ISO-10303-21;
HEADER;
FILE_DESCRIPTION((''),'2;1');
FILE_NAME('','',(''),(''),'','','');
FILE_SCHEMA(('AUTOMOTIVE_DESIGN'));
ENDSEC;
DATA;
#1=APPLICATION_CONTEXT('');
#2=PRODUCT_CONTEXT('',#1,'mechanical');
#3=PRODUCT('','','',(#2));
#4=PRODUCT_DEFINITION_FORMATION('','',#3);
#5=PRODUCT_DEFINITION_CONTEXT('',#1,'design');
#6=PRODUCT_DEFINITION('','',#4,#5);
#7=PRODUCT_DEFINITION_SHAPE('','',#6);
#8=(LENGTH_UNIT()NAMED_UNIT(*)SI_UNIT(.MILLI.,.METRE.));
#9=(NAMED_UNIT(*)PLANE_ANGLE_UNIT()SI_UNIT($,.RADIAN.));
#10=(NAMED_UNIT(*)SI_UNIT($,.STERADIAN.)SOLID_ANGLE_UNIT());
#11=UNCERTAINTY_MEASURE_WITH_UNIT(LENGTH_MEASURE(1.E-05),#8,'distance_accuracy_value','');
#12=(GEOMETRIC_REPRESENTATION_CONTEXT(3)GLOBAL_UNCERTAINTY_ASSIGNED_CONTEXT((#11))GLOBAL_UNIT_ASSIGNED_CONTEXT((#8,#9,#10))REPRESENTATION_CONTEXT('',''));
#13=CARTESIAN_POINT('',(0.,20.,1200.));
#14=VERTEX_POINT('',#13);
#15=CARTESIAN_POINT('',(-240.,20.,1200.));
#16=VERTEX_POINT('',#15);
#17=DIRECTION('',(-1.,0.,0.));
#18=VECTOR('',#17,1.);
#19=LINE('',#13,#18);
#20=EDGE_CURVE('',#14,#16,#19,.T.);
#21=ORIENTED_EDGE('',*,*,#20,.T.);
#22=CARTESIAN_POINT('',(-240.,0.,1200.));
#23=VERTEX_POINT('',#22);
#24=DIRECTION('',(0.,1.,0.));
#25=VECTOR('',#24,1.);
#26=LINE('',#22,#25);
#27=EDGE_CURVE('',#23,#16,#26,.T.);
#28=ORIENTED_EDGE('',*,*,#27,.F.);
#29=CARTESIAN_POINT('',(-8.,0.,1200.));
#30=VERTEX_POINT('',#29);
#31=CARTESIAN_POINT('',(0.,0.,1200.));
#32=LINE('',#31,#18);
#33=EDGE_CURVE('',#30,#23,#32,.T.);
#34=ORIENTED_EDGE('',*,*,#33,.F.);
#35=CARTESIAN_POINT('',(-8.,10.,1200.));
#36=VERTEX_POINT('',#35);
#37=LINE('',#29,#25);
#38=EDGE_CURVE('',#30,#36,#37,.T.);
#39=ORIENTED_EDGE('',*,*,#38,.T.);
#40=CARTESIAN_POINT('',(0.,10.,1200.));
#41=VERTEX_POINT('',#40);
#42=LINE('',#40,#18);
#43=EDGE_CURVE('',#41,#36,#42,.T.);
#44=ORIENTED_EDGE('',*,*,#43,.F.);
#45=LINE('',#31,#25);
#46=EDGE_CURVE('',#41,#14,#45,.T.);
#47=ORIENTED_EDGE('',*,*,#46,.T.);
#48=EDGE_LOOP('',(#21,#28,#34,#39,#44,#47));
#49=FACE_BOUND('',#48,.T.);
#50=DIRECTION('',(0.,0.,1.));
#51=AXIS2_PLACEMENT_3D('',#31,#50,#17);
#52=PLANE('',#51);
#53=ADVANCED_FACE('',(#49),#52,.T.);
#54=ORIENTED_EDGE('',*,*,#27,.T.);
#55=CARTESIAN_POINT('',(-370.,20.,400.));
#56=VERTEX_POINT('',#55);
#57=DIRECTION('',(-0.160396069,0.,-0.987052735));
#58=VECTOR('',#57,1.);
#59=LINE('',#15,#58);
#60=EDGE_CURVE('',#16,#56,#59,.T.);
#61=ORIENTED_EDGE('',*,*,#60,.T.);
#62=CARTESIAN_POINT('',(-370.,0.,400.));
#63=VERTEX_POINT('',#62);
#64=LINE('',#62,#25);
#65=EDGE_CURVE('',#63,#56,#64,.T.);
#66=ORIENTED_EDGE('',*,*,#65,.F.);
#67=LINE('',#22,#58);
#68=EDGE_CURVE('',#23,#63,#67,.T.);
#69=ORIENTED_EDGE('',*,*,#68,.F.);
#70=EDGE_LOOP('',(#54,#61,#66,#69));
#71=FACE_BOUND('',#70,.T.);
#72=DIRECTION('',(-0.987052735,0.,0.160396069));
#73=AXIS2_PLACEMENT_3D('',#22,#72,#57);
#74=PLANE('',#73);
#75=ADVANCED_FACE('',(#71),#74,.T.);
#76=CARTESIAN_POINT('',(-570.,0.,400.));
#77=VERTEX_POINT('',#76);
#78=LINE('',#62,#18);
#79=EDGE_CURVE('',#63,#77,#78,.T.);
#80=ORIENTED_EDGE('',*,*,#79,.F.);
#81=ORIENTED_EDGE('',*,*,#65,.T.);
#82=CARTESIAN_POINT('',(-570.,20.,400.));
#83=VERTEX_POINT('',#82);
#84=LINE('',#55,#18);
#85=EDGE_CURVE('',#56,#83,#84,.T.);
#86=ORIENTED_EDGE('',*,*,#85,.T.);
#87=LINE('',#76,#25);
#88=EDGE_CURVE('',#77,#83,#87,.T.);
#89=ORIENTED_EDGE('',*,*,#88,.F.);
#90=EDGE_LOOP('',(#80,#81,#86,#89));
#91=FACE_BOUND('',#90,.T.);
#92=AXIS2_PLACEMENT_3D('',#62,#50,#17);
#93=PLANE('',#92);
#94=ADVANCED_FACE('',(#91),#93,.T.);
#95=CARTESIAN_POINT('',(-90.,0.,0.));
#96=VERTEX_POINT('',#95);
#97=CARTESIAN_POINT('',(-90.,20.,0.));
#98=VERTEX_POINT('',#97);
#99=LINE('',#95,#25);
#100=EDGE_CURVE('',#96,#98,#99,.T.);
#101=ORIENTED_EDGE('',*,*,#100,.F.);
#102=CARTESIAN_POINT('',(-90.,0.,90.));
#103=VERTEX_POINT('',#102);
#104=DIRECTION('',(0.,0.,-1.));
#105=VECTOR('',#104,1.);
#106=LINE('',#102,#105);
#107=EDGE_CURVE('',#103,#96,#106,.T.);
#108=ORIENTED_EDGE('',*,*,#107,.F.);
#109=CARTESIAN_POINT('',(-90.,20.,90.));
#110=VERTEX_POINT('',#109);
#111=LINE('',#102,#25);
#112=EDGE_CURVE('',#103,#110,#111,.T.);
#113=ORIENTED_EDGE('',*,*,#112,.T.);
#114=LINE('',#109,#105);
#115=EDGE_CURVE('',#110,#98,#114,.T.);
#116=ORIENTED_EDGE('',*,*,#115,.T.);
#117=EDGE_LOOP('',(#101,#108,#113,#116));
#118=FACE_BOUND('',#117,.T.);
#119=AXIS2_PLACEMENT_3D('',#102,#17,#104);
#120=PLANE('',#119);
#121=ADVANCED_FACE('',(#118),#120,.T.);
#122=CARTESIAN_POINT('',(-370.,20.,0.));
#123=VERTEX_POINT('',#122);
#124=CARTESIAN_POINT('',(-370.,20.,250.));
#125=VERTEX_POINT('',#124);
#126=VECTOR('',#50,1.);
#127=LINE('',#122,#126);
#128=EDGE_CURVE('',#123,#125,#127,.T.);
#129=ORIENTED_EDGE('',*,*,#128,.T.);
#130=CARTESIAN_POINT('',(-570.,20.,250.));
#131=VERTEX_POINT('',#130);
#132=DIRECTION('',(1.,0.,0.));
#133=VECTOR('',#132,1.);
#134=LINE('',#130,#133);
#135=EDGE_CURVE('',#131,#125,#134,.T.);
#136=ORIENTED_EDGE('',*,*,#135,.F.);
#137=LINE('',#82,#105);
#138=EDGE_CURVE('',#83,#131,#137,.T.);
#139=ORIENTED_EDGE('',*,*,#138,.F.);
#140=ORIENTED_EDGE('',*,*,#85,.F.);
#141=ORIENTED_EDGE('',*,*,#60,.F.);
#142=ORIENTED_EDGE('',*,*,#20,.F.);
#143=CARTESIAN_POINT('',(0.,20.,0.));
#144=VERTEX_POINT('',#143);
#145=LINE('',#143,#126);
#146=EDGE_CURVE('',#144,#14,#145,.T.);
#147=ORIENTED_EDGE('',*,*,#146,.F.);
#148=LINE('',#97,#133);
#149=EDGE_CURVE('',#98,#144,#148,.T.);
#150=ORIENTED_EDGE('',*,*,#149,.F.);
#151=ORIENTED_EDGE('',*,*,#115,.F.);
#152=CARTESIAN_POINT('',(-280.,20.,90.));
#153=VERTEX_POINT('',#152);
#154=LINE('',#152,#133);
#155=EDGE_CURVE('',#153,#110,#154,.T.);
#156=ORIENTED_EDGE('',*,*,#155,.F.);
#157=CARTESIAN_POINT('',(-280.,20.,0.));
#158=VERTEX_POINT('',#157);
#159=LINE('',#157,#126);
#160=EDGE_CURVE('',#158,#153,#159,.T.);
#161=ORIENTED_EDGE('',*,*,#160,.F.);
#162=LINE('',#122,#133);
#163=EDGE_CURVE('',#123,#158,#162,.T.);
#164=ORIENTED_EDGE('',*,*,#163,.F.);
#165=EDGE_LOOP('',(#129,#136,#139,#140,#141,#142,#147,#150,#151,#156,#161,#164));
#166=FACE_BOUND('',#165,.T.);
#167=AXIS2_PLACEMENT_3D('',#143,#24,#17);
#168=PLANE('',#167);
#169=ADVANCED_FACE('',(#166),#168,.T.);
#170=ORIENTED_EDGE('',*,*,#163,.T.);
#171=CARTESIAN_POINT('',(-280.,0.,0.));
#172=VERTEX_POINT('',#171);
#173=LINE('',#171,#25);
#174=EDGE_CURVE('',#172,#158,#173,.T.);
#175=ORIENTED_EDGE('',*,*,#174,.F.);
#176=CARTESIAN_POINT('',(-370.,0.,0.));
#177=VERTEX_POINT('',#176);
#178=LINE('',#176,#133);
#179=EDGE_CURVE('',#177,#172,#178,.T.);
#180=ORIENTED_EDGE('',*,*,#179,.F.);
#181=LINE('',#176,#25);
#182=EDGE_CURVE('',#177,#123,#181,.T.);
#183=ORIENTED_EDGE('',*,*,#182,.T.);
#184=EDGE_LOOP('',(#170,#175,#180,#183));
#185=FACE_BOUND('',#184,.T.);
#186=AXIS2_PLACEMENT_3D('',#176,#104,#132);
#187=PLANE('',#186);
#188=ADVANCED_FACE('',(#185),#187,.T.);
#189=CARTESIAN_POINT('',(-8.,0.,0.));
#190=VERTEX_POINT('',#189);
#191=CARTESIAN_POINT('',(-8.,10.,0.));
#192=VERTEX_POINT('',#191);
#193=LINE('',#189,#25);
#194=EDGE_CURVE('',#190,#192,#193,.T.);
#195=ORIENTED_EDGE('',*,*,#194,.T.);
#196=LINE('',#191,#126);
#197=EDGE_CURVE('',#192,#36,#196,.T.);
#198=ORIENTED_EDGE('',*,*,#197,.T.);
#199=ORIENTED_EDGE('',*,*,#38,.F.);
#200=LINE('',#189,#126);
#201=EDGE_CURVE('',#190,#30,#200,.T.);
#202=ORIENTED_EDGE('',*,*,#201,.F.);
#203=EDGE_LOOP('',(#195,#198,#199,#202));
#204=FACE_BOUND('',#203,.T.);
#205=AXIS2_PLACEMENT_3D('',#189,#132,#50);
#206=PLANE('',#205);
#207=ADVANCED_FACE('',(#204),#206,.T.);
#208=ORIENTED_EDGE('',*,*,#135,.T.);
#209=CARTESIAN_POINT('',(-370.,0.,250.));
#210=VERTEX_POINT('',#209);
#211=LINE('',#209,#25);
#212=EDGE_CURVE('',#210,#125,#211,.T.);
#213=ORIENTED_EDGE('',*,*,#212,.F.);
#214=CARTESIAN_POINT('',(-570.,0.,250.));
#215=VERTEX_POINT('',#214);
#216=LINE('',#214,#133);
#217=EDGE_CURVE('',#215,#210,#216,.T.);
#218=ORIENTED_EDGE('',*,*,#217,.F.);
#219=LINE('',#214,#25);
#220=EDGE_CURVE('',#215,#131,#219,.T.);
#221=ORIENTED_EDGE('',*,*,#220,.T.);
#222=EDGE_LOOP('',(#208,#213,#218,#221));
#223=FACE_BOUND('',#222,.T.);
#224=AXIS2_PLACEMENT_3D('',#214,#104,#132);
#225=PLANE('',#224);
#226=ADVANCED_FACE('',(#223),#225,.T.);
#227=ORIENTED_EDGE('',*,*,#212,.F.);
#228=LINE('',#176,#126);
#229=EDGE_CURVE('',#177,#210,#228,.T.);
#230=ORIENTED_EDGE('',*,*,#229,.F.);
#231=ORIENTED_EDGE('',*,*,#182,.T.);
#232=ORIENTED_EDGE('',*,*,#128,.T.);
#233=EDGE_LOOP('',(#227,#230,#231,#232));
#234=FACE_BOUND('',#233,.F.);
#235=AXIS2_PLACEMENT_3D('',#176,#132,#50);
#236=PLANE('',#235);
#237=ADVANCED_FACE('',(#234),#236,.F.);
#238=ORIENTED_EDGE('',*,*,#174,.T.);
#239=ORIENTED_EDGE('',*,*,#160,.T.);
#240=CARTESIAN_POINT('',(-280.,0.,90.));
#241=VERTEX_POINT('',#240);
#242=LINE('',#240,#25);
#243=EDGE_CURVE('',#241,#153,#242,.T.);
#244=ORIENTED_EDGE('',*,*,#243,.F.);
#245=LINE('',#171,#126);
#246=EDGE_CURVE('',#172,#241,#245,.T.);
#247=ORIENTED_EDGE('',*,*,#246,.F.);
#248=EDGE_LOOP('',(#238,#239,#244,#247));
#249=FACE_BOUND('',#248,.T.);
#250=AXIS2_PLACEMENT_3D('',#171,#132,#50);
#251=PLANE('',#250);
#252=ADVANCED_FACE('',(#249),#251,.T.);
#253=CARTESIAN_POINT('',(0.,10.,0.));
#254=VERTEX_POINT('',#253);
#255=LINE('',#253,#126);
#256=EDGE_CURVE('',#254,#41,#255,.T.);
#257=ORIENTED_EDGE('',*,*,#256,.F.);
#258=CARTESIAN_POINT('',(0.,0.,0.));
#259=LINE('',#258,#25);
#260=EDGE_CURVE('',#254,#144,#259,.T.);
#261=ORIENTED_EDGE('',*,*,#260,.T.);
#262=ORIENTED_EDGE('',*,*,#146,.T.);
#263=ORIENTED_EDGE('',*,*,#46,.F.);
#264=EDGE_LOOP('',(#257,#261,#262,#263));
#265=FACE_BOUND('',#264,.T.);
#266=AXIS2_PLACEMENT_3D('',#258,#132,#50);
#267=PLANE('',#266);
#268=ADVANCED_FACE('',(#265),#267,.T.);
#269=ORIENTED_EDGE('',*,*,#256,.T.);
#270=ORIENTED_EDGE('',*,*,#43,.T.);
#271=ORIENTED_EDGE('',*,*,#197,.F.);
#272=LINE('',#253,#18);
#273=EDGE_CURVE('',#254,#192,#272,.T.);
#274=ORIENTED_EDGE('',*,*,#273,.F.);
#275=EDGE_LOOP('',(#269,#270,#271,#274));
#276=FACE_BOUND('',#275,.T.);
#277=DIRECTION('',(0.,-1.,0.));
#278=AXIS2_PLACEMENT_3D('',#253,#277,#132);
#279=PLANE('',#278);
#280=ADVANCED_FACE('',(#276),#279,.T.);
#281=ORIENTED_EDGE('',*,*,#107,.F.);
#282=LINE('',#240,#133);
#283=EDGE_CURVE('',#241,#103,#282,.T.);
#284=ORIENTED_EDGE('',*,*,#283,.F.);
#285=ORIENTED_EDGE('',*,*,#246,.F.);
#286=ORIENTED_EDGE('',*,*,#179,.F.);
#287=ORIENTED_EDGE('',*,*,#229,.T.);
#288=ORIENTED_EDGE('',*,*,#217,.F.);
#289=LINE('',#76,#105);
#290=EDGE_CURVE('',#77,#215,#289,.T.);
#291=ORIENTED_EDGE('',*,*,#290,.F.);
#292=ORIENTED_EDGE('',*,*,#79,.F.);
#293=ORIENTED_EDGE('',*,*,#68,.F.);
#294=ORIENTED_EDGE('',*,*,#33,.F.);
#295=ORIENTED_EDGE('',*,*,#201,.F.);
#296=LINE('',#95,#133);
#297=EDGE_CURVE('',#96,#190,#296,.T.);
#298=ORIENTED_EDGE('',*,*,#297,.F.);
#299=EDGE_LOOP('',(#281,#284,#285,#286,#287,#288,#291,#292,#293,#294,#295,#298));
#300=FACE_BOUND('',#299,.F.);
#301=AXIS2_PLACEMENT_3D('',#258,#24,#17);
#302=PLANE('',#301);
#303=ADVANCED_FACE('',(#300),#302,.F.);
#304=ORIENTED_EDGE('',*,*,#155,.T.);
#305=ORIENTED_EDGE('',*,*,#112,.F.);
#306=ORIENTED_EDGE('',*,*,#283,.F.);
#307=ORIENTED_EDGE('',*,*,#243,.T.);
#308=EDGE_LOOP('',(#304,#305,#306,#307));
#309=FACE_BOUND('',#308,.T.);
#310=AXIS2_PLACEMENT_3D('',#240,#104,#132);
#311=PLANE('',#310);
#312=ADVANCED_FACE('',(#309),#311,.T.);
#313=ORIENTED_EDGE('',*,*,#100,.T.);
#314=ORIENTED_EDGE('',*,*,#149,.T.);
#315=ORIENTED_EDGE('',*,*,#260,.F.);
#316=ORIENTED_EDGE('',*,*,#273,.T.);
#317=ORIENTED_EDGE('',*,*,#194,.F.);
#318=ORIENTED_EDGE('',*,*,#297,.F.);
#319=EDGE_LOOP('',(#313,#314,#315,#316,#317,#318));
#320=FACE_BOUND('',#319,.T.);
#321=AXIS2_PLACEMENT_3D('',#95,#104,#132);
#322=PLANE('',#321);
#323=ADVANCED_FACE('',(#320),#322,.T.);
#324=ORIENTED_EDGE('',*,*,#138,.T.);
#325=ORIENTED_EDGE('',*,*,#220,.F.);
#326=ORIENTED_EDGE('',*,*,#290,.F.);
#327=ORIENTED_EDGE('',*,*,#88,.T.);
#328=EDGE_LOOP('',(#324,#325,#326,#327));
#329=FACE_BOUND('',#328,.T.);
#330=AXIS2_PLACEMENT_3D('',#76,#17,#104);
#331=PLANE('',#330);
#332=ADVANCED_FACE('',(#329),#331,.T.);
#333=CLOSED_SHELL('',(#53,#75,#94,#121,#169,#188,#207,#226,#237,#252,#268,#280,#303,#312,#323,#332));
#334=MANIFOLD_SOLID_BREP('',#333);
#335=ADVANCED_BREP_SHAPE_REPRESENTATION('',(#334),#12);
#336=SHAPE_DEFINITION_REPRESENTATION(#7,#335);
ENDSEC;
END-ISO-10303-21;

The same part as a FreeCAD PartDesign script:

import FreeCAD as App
import Part
import Sketcher
Q = App.Units.Quantity


def add_polygon(sketch, points):
    """Adds a closed chain of lines whose ends are joined by coincident constraints."""
    first, n = sketch.GeometryCount, len(points)
    for a, b in zip(points, points[1:] + points[:1]):
        sketch.addGeometry(Part.LineSegment(App.Vector(*a, 0), App.Vector(*b, 0)), False)
    for i in range(n):
        sketch.addConstraint(Sketcher.Constraint("Coincident", first + i, 2, first + (i + 1) % n, 1))

doc = App.newDocument("Part")
body = doc.addObject("PartDesign::Body", "Body")

sketch1 = body.newObject("Sketcher::SketchObject", "Sketch")
sketch1.AttachmentSupport = (doc.getObject("XZ_Plane"), [""])
sketch1.MapMode = "FlatFace"
add_polygon(sketch1, [(0, 1200), (0, 0), (-90, 0), (-90, 90), (-280, 90), (-280, 0), (-370, 0), (-370, 250), (-570, 250), (-570, 400), (-370, 400), (-240, 1200)])
sketch1.addConstraint(Sketcher.Constraint("Vertical", 0))
sketch1.addConstraint(Sketcher.Constraint("Horizontal", 1))
sketch1.addConstraint(Sketcher.Constraint("Vertical", 2))
sketch1.addConstraint(Sketcher.Constraint("Horizontal", 3))
sketch1.addConstraint(Sketcher.Constraint("Vertical", 4))
sketch1.addConstraint(Sketcher.Constraint("Horizontal", 5))
sketch1.addConstraint(Sketcher.Constraint("Vertical", 6))
sketch1.addConstraint(Sketcher.Constraint("Horizontal", 7))
sketch1.addConstraint(Sketcher.Constraint("Vertical", 8))
sketch1.addConstraint(Sketcher.Constraint("Horizontal", 9))
sketch1.addConstraint(Sketcher.Constraint("Horizontal", 11))
sketch1.addConstraint(Sketcher.Constraint("Coincident", 0, 2, -1, 1))
sketch1.addConstraint(Sketcher.Constraint("PointOnObject", 4, 2, -1))
sketch1.addConstraint(Sketcher.Constraint("Vertical", 6, 2, 9, 2))
sketch1.addConstraint(Sketcher.Constraint("Equal", 1, 5))
sketch1.addConstraint(Sketcher.Constraint("Equal", 5, 2))
sketch1.addConstraint(Sketcher.Constraint("DistanceX", 1, 2, 1, 1, Q("90 mm")))
sketch1.addConstraint(Sketcher.Constraint("DistanceX", 3, 2, 3, 1, Q("190 mm")))
sketch1.addConstraint(Sketcher.Constraint("DistanceX", 7, 2, 7, 1, Q("200 mm")))
sketch1.addConstraint(Sketcher.Constraint("DistanceX", 11, 1, 11, 2, Q("240 mm")))
sketch1.addConstraint(Sketcher.Constraint("DistanceY", 0, 2, 0, 1, Q("1200 mm")))
sketch1.addConstraint(Sketcher.Constraint("DistanceY", 6, 1, 6, 2, Q("250 mm")))
sketch1.addConstraint(Sketcher.Constraint("DistanceY", 8, 1, 8, 2, Q("150 mm")))
pad1 = body.newObject("PartDesign::Pad", "Pad")
pad1.Profile = sketch1
pad1.Length = 20
pad1.Reversed = True

sketch2 = body.newObject("Sketcher::SketchObject", "Sketch001")
sketch2.AttachmentSupport = (doc.getObject("XZ_Plane"), [""])
sketch2.MapMode = "FlatFace"
add_polygon(sketch2, [(-8, 0), (0, 0), (0, 1200), (-8, 1200)])
sketch2.addConstraint(Sketcher.Constraint("Horizontal", 0))
sketch2.addConstraint(Sketcher.Constraint("Vertical", 1))
sketch2.addConstraint(Sketcher.Constraint("Horizontal", 2))
sketch2.addConstraint(Sketcher.Constraint("Vertical", 3))
sketch2.addConstraint(Sketcher.Constraint("Coincident", 0, 2, -1, 1))
sketch2.addConstraint(Sketcher.Constraint("DistanceX", 0, 1, 0, 2, Q("8 mm")))
sketch2.addConstraint(Sketcher.Constraint("DistanceY", 1, 1, 1, 2, Q("1200 mm")))
pocket1 = body.newObject("PartDesign::Pocket", "Pocket")
pocket1.Profile = sketch2
pocket1.Length = 10

doc.recompute()
